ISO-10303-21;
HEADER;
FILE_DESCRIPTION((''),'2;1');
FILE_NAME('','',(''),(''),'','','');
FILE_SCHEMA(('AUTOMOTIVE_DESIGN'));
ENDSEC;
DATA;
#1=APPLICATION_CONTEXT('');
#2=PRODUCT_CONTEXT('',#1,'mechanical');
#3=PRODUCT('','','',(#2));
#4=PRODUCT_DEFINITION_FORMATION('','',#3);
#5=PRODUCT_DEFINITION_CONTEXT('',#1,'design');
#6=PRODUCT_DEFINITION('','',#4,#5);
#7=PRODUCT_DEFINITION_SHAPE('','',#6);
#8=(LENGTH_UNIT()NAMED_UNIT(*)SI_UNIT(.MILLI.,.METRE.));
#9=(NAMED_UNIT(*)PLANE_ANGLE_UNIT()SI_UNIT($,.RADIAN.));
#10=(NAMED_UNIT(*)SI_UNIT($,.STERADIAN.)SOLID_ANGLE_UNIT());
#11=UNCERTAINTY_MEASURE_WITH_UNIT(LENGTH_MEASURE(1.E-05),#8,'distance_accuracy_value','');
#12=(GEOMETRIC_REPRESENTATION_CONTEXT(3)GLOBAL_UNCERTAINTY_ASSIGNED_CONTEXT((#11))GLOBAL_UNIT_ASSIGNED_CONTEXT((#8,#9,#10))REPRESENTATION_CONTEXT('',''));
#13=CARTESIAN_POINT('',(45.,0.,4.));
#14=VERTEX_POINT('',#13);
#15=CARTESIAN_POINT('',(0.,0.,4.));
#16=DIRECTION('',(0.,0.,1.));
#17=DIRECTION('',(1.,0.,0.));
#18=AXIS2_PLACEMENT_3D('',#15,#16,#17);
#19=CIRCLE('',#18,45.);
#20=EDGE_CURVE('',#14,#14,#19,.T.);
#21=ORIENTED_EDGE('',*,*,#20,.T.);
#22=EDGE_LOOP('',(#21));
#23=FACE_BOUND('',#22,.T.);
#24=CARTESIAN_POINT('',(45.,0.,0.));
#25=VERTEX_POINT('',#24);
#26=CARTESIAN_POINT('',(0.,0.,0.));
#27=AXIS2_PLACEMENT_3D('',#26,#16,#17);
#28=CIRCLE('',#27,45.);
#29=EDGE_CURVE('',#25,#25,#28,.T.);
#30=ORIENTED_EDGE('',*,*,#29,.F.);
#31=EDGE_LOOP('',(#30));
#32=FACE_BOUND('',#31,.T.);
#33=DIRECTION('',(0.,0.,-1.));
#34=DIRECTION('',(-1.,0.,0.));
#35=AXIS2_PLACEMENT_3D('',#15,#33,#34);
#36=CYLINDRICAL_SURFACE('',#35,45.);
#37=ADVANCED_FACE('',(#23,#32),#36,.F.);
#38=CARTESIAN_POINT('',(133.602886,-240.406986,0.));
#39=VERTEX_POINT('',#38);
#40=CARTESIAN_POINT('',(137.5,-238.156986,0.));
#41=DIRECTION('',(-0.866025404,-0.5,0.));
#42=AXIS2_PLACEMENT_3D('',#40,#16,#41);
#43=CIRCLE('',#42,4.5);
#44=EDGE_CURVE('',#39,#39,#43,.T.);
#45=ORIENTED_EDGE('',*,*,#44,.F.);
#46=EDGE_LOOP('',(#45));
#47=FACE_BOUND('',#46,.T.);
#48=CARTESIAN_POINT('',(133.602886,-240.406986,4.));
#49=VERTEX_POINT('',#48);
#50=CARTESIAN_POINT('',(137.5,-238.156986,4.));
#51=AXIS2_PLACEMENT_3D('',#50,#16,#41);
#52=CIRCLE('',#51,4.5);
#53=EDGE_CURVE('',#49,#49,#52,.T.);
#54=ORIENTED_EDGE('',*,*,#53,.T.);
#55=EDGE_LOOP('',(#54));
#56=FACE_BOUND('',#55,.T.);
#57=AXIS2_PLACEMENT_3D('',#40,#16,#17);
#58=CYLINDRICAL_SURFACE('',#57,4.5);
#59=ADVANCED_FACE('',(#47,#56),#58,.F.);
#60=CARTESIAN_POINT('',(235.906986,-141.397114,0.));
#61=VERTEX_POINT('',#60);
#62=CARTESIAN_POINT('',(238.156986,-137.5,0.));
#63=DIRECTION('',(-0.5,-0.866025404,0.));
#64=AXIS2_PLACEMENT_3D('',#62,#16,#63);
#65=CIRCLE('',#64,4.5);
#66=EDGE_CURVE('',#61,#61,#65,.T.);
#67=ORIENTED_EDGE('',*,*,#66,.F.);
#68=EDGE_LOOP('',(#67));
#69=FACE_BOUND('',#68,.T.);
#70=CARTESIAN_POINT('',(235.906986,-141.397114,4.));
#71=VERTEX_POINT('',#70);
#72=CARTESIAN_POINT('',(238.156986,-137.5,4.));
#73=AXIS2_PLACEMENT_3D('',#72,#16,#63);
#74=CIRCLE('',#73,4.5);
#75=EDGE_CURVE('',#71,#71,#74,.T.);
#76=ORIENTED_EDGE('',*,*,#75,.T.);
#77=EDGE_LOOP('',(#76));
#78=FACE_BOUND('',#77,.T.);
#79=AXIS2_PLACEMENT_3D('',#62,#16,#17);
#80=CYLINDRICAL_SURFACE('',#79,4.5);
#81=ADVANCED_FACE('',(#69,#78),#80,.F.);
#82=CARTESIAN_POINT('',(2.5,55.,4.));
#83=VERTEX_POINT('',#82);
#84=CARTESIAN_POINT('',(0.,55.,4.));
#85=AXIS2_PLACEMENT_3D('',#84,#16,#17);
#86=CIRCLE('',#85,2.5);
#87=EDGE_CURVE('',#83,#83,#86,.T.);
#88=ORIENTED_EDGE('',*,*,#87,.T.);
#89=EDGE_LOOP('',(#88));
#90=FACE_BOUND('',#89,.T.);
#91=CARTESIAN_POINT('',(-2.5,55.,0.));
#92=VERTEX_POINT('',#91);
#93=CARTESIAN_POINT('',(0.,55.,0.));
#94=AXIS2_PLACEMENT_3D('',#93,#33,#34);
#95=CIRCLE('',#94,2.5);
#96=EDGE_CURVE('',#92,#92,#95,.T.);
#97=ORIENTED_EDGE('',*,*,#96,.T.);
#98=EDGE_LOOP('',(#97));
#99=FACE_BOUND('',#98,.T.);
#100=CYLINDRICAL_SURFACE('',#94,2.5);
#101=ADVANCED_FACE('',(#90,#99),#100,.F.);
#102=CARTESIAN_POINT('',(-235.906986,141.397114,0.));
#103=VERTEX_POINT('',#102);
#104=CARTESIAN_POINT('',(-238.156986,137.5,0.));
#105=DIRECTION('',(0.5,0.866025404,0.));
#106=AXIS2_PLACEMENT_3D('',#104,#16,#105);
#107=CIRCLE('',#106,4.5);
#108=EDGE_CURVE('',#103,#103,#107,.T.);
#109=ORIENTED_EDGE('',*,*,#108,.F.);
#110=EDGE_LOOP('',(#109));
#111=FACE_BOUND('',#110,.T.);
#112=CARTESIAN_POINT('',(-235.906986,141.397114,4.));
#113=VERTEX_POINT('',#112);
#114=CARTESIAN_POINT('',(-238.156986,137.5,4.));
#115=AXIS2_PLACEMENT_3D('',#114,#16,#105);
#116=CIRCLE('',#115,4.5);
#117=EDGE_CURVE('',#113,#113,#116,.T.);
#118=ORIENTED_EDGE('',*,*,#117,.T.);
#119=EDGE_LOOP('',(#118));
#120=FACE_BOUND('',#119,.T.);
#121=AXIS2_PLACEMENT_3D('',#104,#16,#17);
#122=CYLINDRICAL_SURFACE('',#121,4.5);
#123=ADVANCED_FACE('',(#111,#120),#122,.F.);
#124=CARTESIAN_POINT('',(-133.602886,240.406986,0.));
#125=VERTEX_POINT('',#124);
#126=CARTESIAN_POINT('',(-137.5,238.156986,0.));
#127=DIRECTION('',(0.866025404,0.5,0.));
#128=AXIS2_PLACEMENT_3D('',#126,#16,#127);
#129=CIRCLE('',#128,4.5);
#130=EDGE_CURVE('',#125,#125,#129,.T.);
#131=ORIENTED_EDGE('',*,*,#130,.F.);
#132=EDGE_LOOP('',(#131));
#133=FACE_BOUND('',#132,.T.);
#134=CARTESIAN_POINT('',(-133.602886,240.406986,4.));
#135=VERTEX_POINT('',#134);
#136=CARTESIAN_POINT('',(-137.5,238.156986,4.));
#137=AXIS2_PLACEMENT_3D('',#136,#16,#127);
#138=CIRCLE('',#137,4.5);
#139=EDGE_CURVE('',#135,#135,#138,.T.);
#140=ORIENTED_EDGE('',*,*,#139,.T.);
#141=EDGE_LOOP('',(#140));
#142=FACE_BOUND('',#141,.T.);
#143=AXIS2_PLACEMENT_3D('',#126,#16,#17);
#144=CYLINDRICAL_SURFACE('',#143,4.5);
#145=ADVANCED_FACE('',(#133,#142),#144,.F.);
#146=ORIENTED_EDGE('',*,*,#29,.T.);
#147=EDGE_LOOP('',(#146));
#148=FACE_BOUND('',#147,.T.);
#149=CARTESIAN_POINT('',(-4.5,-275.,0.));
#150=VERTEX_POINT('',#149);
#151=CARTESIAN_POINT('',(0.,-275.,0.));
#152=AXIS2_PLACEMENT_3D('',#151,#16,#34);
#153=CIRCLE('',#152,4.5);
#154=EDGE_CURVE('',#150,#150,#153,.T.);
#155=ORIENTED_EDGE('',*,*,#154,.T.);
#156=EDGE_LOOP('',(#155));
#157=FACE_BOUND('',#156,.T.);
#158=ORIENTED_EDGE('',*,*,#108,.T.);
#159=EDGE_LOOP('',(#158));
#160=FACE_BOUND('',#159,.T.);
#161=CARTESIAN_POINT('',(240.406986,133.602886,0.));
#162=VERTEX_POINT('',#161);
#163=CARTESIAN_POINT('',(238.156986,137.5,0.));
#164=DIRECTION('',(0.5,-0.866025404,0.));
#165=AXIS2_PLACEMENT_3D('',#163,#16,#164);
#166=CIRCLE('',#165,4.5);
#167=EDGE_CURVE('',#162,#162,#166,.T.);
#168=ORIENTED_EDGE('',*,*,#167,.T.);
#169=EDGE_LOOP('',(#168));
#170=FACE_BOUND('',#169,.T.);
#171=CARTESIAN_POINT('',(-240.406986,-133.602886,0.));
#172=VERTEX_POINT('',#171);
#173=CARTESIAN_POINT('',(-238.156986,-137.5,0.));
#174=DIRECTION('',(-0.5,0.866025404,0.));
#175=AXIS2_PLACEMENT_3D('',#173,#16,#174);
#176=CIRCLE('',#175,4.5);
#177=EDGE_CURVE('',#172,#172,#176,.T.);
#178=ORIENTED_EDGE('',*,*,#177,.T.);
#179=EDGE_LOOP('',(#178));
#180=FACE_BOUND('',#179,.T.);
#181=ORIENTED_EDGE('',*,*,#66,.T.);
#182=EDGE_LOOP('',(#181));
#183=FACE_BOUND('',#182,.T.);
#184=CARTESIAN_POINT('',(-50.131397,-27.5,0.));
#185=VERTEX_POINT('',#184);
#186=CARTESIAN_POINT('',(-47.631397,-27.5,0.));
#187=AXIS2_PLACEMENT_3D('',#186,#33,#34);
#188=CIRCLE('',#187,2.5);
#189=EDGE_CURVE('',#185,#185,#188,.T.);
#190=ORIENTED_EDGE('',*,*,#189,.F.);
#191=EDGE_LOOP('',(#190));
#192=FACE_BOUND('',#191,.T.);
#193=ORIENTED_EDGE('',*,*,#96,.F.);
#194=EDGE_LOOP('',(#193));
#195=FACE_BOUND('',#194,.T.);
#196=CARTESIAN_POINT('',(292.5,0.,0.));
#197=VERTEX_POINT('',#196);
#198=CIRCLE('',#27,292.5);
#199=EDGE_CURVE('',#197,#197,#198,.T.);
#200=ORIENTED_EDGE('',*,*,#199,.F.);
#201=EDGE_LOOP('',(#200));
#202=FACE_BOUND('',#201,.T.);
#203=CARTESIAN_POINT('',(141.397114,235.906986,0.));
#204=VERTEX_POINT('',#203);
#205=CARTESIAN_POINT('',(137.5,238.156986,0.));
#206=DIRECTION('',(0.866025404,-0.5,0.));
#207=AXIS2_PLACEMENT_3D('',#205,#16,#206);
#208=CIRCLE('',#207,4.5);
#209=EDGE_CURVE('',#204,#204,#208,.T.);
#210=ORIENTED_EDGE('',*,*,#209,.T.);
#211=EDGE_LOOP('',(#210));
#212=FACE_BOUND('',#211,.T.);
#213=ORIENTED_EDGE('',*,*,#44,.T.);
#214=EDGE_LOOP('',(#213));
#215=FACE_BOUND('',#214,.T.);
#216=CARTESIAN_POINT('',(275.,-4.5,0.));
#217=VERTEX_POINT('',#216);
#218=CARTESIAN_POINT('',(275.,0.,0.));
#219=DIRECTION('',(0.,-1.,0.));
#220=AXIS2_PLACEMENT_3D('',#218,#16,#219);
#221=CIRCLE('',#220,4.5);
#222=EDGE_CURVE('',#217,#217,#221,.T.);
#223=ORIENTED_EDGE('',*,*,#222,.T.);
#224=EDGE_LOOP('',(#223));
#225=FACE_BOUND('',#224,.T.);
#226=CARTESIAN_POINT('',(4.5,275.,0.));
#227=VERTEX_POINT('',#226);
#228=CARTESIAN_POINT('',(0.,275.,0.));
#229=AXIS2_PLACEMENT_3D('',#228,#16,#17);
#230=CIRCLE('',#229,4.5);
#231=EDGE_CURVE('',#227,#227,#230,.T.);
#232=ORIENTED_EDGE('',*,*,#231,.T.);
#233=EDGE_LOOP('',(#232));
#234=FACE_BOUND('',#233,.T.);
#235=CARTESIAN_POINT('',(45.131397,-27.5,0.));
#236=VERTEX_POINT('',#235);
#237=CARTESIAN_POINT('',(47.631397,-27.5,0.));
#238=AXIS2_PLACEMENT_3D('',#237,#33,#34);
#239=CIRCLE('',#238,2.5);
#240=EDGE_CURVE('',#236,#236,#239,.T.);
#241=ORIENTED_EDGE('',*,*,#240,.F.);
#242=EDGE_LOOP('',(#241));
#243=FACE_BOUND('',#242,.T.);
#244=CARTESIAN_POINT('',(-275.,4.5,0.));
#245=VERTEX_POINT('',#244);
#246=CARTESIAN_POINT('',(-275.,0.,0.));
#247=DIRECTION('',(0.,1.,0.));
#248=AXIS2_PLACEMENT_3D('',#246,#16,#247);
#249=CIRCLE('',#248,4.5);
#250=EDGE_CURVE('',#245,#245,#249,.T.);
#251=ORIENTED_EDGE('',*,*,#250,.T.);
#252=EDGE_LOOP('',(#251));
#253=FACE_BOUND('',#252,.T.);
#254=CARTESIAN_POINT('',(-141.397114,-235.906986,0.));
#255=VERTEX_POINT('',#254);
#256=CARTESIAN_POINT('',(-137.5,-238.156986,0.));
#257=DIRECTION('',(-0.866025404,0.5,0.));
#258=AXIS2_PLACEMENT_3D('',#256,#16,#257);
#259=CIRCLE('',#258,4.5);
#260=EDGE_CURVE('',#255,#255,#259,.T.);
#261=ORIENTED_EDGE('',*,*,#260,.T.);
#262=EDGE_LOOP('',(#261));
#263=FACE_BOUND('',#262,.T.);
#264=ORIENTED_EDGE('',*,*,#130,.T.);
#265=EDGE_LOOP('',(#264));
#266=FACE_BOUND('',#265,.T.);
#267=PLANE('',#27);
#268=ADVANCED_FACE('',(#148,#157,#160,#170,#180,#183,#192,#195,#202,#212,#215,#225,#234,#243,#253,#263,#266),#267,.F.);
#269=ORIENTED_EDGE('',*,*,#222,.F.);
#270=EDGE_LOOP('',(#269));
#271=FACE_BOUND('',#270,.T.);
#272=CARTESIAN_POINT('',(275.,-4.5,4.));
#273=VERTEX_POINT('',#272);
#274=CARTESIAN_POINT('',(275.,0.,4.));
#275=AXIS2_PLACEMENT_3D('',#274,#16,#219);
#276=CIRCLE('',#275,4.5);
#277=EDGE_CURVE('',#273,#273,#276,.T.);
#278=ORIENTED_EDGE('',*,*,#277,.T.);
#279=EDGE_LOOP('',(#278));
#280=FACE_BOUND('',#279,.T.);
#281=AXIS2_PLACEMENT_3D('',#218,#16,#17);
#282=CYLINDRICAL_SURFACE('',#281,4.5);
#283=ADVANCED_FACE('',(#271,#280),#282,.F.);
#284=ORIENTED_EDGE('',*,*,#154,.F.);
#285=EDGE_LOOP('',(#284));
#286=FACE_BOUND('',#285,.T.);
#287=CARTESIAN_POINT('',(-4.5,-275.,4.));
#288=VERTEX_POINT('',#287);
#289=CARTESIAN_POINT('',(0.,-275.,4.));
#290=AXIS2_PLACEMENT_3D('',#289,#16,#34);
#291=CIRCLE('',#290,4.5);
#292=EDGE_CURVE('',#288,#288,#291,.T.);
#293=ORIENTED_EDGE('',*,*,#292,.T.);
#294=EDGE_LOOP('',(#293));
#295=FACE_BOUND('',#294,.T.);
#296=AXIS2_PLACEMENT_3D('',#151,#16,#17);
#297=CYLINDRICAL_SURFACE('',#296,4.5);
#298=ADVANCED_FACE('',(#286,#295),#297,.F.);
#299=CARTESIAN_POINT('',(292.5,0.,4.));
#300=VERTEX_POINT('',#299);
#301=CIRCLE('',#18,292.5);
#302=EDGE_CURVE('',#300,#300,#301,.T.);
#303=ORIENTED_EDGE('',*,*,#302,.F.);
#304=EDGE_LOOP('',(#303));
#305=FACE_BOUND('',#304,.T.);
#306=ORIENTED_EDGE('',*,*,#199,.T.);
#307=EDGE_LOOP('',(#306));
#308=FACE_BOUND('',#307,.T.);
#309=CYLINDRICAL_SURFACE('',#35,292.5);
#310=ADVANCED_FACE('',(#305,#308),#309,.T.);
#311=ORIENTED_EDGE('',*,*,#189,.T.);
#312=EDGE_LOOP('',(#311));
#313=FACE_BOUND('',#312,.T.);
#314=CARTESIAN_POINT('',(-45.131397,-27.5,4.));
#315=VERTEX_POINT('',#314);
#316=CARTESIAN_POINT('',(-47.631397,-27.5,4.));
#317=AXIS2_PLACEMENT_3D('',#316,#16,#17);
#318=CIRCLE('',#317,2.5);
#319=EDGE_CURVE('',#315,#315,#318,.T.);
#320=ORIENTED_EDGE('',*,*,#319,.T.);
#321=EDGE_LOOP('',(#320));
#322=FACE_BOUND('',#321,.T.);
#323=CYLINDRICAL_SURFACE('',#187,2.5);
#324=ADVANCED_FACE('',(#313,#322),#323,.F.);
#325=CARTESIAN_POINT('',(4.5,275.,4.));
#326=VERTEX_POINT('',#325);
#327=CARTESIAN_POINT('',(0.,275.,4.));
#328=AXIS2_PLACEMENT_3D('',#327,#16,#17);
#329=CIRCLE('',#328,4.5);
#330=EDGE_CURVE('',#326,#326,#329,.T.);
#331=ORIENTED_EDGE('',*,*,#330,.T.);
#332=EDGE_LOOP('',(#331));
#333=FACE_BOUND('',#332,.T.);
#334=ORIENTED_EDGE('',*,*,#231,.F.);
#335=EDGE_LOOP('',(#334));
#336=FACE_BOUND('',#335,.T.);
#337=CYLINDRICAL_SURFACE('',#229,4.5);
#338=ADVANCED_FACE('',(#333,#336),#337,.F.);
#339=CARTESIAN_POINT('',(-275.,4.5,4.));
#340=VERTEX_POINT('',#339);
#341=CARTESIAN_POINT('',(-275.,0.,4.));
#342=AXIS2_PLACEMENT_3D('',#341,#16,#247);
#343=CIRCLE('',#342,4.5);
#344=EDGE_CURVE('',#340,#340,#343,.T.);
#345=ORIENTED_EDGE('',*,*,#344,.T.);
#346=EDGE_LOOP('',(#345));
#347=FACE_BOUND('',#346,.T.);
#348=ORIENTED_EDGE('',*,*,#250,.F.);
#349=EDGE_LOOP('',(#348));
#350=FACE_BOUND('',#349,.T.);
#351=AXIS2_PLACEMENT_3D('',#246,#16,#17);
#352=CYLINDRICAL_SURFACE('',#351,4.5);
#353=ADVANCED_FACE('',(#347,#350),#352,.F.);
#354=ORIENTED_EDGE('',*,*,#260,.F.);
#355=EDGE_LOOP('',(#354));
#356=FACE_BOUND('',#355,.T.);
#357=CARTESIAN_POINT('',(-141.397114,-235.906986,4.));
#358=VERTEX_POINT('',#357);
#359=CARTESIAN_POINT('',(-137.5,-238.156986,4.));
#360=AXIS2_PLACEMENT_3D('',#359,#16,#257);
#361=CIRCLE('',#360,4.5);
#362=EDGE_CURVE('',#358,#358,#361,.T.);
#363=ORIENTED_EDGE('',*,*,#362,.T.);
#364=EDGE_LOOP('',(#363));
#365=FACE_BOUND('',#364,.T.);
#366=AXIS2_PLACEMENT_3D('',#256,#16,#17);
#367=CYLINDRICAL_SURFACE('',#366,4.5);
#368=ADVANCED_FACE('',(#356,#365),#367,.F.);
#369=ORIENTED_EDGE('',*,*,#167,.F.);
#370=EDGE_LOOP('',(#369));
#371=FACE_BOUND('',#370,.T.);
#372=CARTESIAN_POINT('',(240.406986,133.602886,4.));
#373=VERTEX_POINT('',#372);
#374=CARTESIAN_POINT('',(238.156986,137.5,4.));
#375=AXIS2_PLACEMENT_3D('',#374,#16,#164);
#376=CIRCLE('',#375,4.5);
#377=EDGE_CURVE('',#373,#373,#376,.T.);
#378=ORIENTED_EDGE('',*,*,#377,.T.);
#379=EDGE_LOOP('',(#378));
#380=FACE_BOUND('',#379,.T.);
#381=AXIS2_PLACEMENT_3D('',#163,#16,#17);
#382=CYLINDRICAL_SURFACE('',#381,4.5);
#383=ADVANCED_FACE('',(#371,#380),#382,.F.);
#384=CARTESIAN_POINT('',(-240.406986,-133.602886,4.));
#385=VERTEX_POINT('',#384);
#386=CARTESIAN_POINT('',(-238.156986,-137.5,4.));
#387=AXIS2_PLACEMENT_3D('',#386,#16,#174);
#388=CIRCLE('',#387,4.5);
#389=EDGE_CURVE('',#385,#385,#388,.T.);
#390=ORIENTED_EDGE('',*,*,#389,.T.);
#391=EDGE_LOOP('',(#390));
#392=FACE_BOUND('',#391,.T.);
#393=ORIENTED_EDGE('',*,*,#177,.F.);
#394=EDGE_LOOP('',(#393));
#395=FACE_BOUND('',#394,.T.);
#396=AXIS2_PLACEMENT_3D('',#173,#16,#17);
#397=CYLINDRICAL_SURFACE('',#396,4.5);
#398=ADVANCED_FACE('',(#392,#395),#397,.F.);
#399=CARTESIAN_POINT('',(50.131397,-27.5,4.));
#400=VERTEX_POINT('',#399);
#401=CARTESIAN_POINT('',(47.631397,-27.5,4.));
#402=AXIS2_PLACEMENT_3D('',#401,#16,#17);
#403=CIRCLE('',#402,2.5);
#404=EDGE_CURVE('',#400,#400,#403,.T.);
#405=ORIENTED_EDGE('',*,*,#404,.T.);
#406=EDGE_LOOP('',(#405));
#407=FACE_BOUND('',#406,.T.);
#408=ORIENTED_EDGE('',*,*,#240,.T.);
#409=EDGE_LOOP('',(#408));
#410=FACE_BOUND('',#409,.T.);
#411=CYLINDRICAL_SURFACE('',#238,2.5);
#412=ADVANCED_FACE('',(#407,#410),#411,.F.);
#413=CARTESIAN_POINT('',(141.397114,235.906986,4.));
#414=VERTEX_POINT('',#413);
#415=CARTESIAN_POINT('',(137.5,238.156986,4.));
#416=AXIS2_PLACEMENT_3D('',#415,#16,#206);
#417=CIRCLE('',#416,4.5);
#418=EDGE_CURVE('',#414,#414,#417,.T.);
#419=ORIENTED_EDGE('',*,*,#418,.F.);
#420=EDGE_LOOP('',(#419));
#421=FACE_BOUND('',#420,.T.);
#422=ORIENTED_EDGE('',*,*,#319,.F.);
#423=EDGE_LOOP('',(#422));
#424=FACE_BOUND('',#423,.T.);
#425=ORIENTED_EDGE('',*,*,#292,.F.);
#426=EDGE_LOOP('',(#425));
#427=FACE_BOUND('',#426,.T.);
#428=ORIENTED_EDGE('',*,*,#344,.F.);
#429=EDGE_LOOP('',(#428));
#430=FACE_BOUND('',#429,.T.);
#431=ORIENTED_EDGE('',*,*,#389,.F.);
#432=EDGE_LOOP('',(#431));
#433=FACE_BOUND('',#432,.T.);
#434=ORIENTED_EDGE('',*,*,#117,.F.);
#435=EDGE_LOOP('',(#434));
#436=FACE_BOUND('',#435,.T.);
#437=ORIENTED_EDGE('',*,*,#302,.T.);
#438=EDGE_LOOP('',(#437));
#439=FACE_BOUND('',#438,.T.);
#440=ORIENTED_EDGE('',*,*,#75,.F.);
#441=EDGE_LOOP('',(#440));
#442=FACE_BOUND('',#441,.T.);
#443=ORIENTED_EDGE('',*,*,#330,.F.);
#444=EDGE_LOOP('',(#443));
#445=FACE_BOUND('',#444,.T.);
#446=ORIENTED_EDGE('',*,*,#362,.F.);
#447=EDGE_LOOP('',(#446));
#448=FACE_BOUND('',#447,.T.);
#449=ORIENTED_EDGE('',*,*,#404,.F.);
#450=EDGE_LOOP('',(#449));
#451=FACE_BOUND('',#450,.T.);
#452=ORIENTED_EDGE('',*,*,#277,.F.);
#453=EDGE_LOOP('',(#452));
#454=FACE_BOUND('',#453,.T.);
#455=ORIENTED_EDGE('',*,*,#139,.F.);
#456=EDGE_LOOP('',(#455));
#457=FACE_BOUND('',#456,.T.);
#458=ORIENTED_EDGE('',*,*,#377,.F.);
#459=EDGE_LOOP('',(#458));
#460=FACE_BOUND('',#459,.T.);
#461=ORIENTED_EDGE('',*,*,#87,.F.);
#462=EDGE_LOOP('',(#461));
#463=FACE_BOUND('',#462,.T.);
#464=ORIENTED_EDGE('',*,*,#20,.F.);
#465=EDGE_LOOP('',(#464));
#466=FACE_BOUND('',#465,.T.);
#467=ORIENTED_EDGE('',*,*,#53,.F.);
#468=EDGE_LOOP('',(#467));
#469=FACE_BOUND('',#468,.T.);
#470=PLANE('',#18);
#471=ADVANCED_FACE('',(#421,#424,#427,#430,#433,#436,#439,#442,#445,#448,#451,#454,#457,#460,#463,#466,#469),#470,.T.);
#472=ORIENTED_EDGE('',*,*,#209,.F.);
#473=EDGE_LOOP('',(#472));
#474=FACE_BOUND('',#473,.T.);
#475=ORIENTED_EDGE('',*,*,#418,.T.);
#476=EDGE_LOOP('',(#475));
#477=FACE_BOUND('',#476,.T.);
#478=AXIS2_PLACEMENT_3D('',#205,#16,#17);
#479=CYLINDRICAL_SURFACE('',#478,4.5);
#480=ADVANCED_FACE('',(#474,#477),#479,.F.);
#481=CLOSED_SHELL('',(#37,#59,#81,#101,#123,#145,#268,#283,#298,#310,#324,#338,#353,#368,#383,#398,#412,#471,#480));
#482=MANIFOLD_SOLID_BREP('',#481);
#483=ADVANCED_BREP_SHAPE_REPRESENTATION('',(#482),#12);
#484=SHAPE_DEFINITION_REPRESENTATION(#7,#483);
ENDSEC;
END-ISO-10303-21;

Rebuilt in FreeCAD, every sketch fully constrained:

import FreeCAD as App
import Part
import Sketcher

V = App.Vector
Q = App.Units.Quantity


def add_polygon(sketch, points):
    """Adds a closed chain of lines whose ends are joined by coincident constraints."""
    first, n = sketch.GeometryCount, len(points)
    for a, b in zip(points, points[1:] + points[:1]):
        sketch.addGeometry(Part.LineSegment(App.Vector(*a, 0), App.Vector(*b, 0)), False)
    for i in range(n):
        sketch.addConstraint(Sketcher.Constraint("Coincident", first + i, 2, first + (i + 1) % n, 1))

doc = App.newDocument("Part")
body = doc.addObject("PartDesign::Body", "Body")

# Sketch on XY plane
sketch1 = doc.addObject("Sketcher::SketchObject", "Sketch")
body.addObject(sketch1)
sketch1.AttachmentSupport = (doc.XY_Plane, [""])
sketch1.MapMode = "FlatFace"
sketch1.addGeometry([
    Part.Circle(V(0, 0, 0), V(0, 0, 1), 292),
    Part.Circle(V(0, 0, 0), V(0, 0, 1), 45),
], False)
sketch1.addConstraint([
    Sketcher.Constraint("Coincident", 0, 3, -1, 1),
    Sketcher.Constraint("Coincident", 1, 3, -1, 1),
    Sketcher.Constraint("Diameter", 0, Q("585 mm")),
    Sketcher.Constraint("Diameter", 1, Q("90 mm")),
])
pad1 = doc.addObject("PartDesign::Pad", "Pad")
body.addObject(pad1)
pad1.Profile = sketch1
pad1.Length = 4

# Sketch on XY plane
sketch2 = doc.addObject("Sketcher::SketchObject", "Sketch001")
body.addObject(sketch2)
sketch2.AttachmentSupport = (doc.XY_Plane, [""])
sketch2.MapMode = "FlatFace"
sketch2.AttachmentOffset = App.Placement(V(0, 0, 4), App.Rotation())
sketch2.addGeometry(Part.Circle(V(0, 275, 0), V(0, 0, 1), 4.5), False)
sketch2.addConstraint([
    Sketcher.Constraint("PointOnObject", 0, 3, -2),
    Sketcher.Constraint("Diameter", 0, Q("9 mm")),
    Sketcher.Constraint("DistanceY", -1, 1, 0, 3, Q("275 mm")),
])
pocket1 = doc.addObject("PartDesign::Pocket", "Pocket")
body.addObject(pocket1)
pocket1.Profile = sketch2
pocket1.Type = "ThroughAll"
doc.recompute()

polarpattern = doc.addObject("PartDesign::PolarPattern", "PolarPattern")
body.addObject(polarpattern)
polarpattern.Originals = [pocket1]
polarpattern.Axis = (doc.Z_Axis, [""])
polarpattern.Angle = 360
polarpattern.Occurrences = 12
body.Tip = polarpattern

# Sketch on YZ plane
sketch3 = doc.addObject("Sketcher::SketchObject", "Sketch002")
body.addObject(sketch3)
sketch3.AttachmentSupport = (doc.YZ_Plane, [""])
sketch3.MapMode = "FlatFace"
add_polygon(sketch3, [(55, 16.5), (55, 0), (57.5, 0), (57.5, 15)])  # lines 0-3
sketch3.addGeometry(Part.LineSegment(V(55, 0, 0), V(55, 16.5, 0)), True)  # axis
sketch3.addConstraint([
    Sketcher.Constraint("Vertical", 0),
    Sketcher.Constraint("Horizontal", 1),
    Sketcher.Constraint("Vertical", 2),
    Sketcher.Constraint("Vertical", 4),
    Sketcher.Constraint("Coincident", 4, 1, 0, 2),
    Sketcher.Constraint("PointOnObject", 0, 2, -1),
    Sketcher.Constraint("Equal", 0, 4),
    Sketcher.Constraint("DistanceY", 2, 1, 2, 2, Q("15 mm")),
    Sketcher.Constraint("Angle", 3, Q("149 deg")),
    Sketcher.Constraint("DistanceX", 1, 1, 1, 2, Q("2.5 mm")),
    Sketcher.Constraint("DistanceX", -1, 1, 0, 2, Q("55 mm")),
])
groove = doc.addObject("PartDesign::Groove", "Groove")
body.addObject(groove)
groove.Profile = sketch3
groove.ReferenceAxis = (sketch3, ["Axis0"])
groove.Angle = 360
doc.recompute()

polarpattern2 = doc.addObject("PartDesign::PolarPattern", "PolarPattern001")
body.addObject(polarpattern2)
polarpattern2.Originals = [groove]
polarpattern2.Axis = (doc.Z_Axis, [""])
polarpattern2.Angle = 360
polarpattern2.Occurrences = 3
body.Tip = polarpattern2

doc.recompute()
